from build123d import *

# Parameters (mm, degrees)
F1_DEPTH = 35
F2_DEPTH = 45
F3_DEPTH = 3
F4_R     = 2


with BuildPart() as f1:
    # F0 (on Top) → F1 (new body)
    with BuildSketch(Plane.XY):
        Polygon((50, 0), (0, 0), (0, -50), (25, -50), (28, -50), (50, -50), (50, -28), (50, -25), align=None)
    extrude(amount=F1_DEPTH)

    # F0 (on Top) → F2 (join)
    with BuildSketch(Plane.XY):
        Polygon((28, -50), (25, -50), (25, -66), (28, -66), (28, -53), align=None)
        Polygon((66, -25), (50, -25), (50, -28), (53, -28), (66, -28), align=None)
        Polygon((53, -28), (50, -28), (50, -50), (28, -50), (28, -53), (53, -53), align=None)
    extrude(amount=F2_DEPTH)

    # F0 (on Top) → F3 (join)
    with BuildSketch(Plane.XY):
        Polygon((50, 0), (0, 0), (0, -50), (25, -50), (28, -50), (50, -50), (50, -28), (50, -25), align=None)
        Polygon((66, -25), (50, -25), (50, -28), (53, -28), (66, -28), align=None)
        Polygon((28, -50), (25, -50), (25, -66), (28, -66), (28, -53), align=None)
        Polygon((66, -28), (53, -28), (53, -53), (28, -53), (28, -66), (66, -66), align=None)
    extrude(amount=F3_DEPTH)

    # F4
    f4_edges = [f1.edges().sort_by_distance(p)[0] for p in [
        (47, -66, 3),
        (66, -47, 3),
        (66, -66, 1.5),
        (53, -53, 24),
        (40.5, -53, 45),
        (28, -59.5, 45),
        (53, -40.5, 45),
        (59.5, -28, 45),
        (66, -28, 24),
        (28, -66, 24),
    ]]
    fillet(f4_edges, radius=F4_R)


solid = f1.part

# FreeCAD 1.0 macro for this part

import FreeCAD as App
import Part
import Sketcher
from FreeCAD import Vector
Q = App.Units.Quantity


def edges_at(feature, points):
    """Names of the edges that pass closest to the given points."""
    edges = feature.Shape.Edges
    near = lambda p: min(range(len(edges)), key=lambda i: edges[i].distToShape(Part.Vertex(*p))[0])
    return sorted({f"Edge{near(p) + 1}" for p in points})


def add_polygon(sketch, points):
    """Adds a closed chain of lines whose ends are joined by coincident constraints."""
    first, n = sketch.GeometryCount, len(points)
    for a, b in zip(points, points[1:] + points[:1]):
        sketch.addGeometry(Part.LineSegment(App.Vector(*a, 0), App.Vector(*b, 0)), False)
    for i in range(n):
        sketch.addConstraint(Sketcher.Constraint("Coincident", first + i, 2, first + (i + 1) % n, 1))

doc = App.newDocument("Part")
params = doc.addObject("Spreadsheet::Sheet", "Params")
for row, (alias, value) in enumerate([
    ("sketch1_width", "50 mm"),
    ("pad1_length", "35 mm"),
    ("sketch2_width", "3 mm"),
    ("sketch2_width2", "25 mm"),
    ("sketch2_width3", "13 mm"),
    ("pad2_length", "45 mm"),
    ("sketch3_width", "50 mm"),
    ("sketch3_width2", "25 mm"),
    ("sketch3_width3", "41 mm"),
    ("sketch3_width4", "22 mm"),
    ("pad3_length", "3 mm"),
    ("fillet_radius", "2 mm"),
], start=1):
    params.set(f"A{row}", alias)
    params.set(f"B{row}", "=" + value)
    params.setAlias(f"B{row}", alias)

body = doc.addObject("PartDesign::Body", "Body")

sketch1 = doc.addObject("Sketcher::SketchObject", "Sketch")
body.addObject(sketch1)
sketch1.AttachmentSupport = (doc.XY_Plane, [""])
sketch1.MapMode = "FlatFace"
add_polygon(sketch1, [(50, 0), (0, 0), (0, -50), (50, -50)])
sketch1.addConstraint([
    Sketcher.Constraint("Horizontal", 0),
    Sketcher.Constraint("Vertical", 1),
    Sketcher.Constraint("Horizontal", 2),
    Sketcher.Constraint("Vertical", 3),
    Sketcher.Constraint("Coincident", 0, 2, -1, 1),
    Sketcher.Constraint("Equal", 2, 1),
    Sketcher.Constraint("DistanceX", 0, 2, 0, 1, Q("50 mm")),
])
sketch1.setExpression("Constraints[10]", "Params.sketch1_width")
pad1 = doc.addObject("PartDesign::Pad", "Pad")
body.addObject(pad1)
pad1.Profile = sketch1
pad1.setExpression("Length", "Params.pad1_length")

sketch2 = doc.addObject("Sketcher::SketchObject", "Sketch001")
body.addObject(sketch2)
sketch2.AttachmentSupport = (doc.XY_Plane, [""])
sketch2.MapMode = "FlatFace"
add_polygon(sketch2, [(25, -50), (25, -66), (28, -66), (28, -53), (53, -53), (53, -28), (66, -28), (66, -25), (50, -25), (50, -50)])
sketch2.addConstraint([
    Sketcher.Constraint("Vertical", 0),
    Sketcher.Constraint("Horizontal", 1),
    Sketcher.Constraint("Vertical", 2),
    Sketcher.Constraint("Horizontal", 3),
    Sketcher.Constraint("Vertical", 4),
    Sketcher.Constraint("Horizontal", 5),
    Sketcher.Constraint("Vertical", 6),
    Sketcher.Constraint("Horizontal", 7),
    Sketcher.Constraint("Vertical", 8),
    Sketcher.Constraint("Horizontal", 9),
    Sketcher.Constraint("Equal", 3, 9),
    Sketcher.Constraint("Equal", 7, 0),
    Sketcher.Constraint("Equal", 5, 2),
    Sketcher.Constraint("Equal", 9, 4),
    Sketcher.Constraint("Equal", 1, 6),
    Sketcher.Constraint("DistanceX", 1, 1, 1, 2, Q("3 mm")),
    Sketcher.Constraint("DistanceX", 3, 1, 3, 2, Q("25 mm")),
    Sketcher.Constraint("DistanceX", 5, 1, 5, 2, Q("13 mm")),
    Sketcher.Constraint("DistanceX", -1, 1, 0, 2, Q("25 mm")),
    Sketcher.Constraint("DistanceY", 0, 2, -1, 1, Q("66 mm")),
])
sketch2.setExpression("Constraints[25]", "Params.sketch2_width")
sketch2.setExpression("Constraints[26]", "Params.sketch2_width2")
sketch2.setExpression("Constraints[27]", "Params.sketch2_width3")
pad2 = doc.addObject("PartDesign::Pad", "Pad001")
body.addObject(pad2)
pad2.Profile = sketch2
pad2.setExpression("Length", "Params.pad2_length")

sketch3 = doc.addObject("Sketcher::SketchObject", "Sketch002")
body.addObject(sketch3)
sketch3.AttachmentSupport = (doc.XY_Plane, [""])
sketch3.MapMode = "FlatFace"
add_polygon(sketch3, [(50, 0), (0, 0), (0, -50), (25, -50), (25, -66), (66, -66), (66, -25), (50, -25)])
add_polygon(sketch3, [(28, -53), (28, -50), (50, -50), (50, -28), (53, -28), (53, -53)])
sketch3.addConstraint([
    Sketcher.Constraint("Horizontal", 0),
    Sketcher.Constraint("Vertical", 1),
    Sketcher.Constraint("Horizontal", 2),
    Sketcher.Constraint("Vertical", 3),
    Sketcher.Constraint("Horizontal", 4),
    Sketcher.Constraint("Vertical", 5),
    Sketcher.Constraint("Horizontal", 6),
    Sketcher.Constraint("Vertical", 7),
    Sketcher.Constraint("Vertical", 8),
    Sketcher.Constraint("Horizontal", 9),
    Sketcher.Constraint("Vertical", 10),
    Sketcher.Constraint("Horizontal", 11),
    Sketcher.Constraint("Vertical", 12),
    Sketcher.Constraint("Horizontal", 13),
    Sketcher.Constraint("Coincident", 0, 2, -1, 1),
    Sketcher.Constraint("Horizontal", 2, 2, 8, 2),
    Sketcher.Constraint("Vertical", 7, 2, 9, 2),
    Sketcher.Constraint("Equal", 2, 13),
    Sketcher.Constraint("Equal", 0, 1),
    Sketcher.Constraint("Equal", 6, 3),
    Sketcher.Constraint("Equal", 4, 5),
    Sketcher.Constraint("Equal", 11, 8),
    Sketcher.Constraint("Equal", 9, 10),
    Sketcher.Constraint("DistanceX", 0, 2, 0, 1, Q("50 mm")),
    Sketcher.Constraint("DistanceX", 2, 1, 2, 2, Q("25 mm")),
    Sketcher.Constraint("DistanceX", 4, 1, 4, 2, Q("41 mm")),
    Sketcher.Constraint("DistanceX", 9, 1, 9, 2, Q("22 mm")),
])
sketch3.setExpression("Constraints[37]", "Params.sketch3_width")
sketch3.setExpression("Constraints[38]", "Params.sketch3_width2")
sketch3.setExpression("Constraints[39]", "Params.sketch3_width3")
sketch3.setExpression("Constraints[40]", "Params.sketch3_width4")
pad3 = doc.addObject("PartDesign::Pad", "Pad002")
body.addObject(pad3)
pad3.Profile = sketch3
pad3.setExpression("Length", "Params.pad3_length")
doc.recompute()

fillet = doc.addObject("PartDesign::Fillet", "Fillet")
body.addObject(fillet)
fillet.Base = (pad3, edges_at(pad3, [
    (47, -66, 3),
    (66, -47, 3),
    (66, -66, 1.5),
    (53, -53, 24),
    (40.5, -53, 45),
    (28, -59.5, 45),
    (53, -40.5, 45),
    (59.5, -28, 45),
    (66, -28, 24),
    (28, -66, 24),
]))
fillet.setExpression("Radius", "Params.fillet_radius")

doc.recompute()
